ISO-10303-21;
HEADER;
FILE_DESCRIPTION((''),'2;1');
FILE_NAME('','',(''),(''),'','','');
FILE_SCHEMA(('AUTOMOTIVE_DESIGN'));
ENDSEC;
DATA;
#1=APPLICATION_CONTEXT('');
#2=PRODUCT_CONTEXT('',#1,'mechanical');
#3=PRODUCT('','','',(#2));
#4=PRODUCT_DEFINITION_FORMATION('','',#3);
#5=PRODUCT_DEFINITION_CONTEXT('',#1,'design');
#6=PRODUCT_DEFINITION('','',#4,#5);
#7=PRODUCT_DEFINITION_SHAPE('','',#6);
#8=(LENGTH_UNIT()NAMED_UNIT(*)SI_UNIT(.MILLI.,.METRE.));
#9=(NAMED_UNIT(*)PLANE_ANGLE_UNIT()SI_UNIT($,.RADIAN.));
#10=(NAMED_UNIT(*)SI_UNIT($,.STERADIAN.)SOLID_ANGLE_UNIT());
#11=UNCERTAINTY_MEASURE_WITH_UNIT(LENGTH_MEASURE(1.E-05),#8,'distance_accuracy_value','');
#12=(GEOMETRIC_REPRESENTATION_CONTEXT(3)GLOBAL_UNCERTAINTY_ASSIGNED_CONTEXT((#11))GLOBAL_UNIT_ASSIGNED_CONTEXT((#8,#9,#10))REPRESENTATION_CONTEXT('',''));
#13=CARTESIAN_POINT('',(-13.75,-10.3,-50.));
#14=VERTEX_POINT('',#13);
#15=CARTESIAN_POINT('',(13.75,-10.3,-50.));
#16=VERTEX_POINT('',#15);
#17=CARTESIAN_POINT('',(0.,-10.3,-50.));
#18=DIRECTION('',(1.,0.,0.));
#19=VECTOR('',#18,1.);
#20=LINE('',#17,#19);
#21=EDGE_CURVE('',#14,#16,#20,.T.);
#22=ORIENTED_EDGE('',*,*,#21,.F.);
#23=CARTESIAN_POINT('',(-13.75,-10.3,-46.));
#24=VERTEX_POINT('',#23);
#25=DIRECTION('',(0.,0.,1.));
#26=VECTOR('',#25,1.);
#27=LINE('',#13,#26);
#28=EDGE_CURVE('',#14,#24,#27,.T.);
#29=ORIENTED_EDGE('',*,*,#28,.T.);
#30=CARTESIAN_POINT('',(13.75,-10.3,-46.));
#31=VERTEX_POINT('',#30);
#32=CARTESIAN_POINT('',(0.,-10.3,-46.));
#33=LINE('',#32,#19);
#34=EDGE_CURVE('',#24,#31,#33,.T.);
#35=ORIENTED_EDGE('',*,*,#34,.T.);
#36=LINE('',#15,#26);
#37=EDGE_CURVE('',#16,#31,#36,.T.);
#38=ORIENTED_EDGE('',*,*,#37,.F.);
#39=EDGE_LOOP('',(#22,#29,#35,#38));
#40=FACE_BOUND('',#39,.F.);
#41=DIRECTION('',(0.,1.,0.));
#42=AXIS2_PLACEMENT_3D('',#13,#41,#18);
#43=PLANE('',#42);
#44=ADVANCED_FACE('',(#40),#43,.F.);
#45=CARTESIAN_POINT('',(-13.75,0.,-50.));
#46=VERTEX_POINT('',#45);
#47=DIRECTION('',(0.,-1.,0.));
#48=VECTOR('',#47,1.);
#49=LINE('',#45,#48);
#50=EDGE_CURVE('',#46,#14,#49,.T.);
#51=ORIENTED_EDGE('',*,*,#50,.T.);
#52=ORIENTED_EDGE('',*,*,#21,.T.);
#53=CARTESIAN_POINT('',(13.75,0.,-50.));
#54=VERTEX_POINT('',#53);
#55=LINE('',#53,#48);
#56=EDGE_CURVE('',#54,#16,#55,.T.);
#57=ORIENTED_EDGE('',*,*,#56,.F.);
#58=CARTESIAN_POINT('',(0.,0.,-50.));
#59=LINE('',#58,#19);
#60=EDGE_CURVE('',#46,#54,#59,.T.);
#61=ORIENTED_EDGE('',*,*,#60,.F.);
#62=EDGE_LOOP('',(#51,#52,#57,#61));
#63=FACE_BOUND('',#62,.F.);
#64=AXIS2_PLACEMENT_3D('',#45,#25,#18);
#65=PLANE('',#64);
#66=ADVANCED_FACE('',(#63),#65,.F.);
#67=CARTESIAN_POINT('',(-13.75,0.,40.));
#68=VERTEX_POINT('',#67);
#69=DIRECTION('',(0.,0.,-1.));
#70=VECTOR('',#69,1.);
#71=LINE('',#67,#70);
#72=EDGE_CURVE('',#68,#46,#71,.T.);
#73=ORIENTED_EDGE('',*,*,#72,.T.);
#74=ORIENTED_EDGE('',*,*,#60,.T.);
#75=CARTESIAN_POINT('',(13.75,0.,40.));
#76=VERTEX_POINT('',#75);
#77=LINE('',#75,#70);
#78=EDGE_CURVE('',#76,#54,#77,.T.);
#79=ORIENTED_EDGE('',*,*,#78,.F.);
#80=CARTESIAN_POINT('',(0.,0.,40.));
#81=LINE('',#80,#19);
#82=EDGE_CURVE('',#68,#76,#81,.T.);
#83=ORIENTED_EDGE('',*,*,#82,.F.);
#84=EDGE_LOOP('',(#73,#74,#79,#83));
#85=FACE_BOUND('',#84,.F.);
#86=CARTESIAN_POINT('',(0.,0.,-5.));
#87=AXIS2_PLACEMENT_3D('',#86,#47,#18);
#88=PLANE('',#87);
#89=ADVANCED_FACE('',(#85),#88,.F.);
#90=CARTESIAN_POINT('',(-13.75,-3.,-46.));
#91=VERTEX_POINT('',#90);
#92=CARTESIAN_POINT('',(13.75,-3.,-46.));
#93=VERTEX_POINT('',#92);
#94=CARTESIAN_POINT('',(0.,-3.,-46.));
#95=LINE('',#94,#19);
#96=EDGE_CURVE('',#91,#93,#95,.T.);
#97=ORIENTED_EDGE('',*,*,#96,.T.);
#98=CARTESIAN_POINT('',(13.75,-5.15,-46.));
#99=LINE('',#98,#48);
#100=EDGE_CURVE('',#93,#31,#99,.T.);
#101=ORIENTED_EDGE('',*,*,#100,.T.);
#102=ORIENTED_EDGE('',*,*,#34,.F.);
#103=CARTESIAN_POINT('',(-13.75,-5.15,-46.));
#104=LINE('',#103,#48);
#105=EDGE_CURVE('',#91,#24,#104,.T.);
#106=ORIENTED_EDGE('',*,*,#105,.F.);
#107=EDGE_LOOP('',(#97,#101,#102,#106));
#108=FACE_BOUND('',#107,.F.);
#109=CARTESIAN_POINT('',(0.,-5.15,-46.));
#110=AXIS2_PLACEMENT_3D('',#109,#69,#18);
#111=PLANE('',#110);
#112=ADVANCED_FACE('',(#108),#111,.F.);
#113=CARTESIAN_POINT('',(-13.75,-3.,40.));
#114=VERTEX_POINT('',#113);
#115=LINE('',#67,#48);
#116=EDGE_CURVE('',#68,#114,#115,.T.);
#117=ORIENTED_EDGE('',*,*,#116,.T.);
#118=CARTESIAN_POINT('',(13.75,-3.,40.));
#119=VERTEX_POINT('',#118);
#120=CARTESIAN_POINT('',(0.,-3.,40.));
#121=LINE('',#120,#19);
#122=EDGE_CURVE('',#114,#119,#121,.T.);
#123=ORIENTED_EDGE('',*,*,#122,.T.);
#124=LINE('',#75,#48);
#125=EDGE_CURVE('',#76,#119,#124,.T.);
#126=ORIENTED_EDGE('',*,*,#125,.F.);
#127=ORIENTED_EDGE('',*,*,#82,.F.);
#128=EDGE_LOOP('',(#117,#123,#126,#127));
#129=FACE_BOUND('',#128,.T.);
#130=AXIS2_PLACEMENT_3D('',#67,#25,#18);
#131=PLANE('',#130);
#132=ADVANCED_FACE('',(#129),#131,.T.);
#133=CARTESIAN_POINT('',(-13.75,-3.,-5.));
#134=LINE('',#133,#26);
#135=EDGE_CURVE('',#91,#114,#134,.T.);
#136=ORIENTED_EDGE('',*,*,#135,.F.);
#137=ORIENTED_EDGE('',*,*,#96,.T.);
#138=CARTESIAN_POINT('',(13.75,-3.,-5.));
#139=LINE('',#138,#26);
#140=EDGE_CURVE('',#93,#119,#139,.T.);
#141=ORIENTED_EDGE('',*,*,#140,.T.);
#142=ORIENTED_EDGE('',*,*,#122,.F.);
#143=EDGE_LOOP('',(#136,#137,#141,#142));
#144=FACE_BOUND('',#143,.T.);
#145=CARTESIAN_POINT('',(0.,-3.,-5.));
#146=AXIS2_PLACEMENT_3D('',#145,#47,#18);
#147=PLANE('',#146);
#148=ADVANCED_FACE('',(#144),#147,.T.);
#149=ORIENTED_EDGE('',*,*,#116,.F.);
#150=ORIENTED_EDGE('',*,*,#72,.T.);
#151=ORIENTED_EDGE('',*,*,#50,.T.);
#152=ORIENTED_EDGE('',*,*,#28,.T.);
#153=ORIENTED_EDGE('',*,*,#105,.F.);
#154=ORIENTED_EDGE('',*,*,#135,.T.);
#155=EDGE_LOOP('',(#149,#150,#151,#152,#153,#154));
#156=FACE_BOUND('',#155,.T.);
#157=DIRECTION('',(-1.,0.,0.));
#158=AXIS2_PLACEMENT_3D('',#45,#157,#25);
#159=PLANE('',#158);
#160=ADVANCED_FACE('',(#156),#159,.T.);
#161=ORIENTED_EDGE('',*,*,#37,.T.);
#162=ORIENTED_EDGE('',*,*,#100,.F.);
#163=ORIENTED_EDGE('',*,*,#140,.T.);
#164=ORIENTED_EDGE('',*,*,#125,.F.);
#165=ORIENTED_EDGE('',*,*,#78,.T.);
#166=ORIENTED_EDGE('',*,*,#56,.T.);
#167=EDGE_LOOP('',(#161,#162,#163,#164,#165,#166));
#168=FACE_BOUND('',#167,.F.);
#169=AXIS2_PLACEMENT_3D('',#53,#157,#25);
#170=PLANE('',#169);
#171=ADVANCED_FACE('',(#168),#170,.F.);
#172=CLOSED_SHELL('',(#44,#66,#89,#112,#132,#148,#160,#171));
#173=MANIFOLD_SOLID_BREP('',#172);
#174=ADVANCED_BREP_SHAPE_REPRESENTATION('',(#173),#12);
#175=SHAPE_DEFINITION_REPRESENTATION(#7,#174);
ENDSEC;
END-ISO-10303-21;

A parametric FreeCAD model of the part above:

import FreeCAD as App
import Part
import Sketcher
from FreeCAD import Vector


def add_polygon(sketch, points):
    """Adds a closed chain of lines whose ends are joined by coincident constraints."""
    first, n = sketch.GeometryCount, len(points)
    for a, b in zip(points, points[1:] + points[:1]):
        sketch.addGeometry(Part.LineSegment(App.Vector(*a, 0), App.Vector(*b, 0)), False)
    for i in range(n):
        sketch.addConstraint(Sketcher.Constraint("Coincident", first + i, 2, first + (i + 1) % n, 1))

doc = App.newDocument("Part")
params = doc.addObject("Spreadsheet::Sheet", "Params")
for row, (alias, value) in enumerate([
    ("sketch1_height", "90 mm"),
    ("sketch1_width", "27.5 mm"),
    ("pad1_length", "3 mm"),
    ("sketch2_width", "27.5 mm"),
    ("sketch2_height", "10.3 mm"),
    ("pad2_length", "4 mm"),
], start=1):
    params.set(f"A{row}", alias)
    params.set(f"B{row}", "=" + value)
    params.setAlias(f"B{row}", alias)

body = doc.addObject("PartDesign::Body", "Body")

# Sketch on XZ plane
sketch1 = body.newObject("Sketcher::SketchObject", "Sketch")
sketch1.AttachmentSupport = (doc.getObject("XZ_Plane"), [""])
sketch1.MapMode = "FlatFace"
add_polygon(sketch1, [(-13.75, 40), (-13.75, -50), (13.75, -50), (13.75, 40)])  # lines 0-3
sketch1.addConstraint(Sketcher.Constraint("Vertical", 0))
sketch1.addConstraint(Sketcher.Constraint("Horizontal", 1))
sketch1.addConstraint(Sketcher.Constraint("Vertical", 2))
sketch1.addConstraint(Sketcher.Constraint("Horizontal", 3))
sketch1.addConstraint(Sketcher.Constraint("DistanceY", 0, 2, 0, 1, 90.0))
sketch1.addConstraint(Sketcher.Constraint("DistanceX", 1, 1, 1, 2, 27.5))
sketch1.addConstraint(Sketcher.Constraint("DistanceY", 0, 2, -1, 1, 50.0))
sketch1.addConstraint(Sketcher.Constraint("DistanceX", 0, 2, -1, 1, 13.75))
sketch1.setExpression("Constraints[8]", "Params.sketch1_height")
sketch1.setExpression("Constraints[9]", "Params.sketch1_width")
pad1 = body.newObject("PartDesign::Pad", "Pad")
pad1.Profile = sketch1
pad1.setExpression("Length", "Params.pad1_length")

# Sketch on XY plane
sketch2 = body.newObject("Sketcher::SketchObject", "Sketch001")
sketch2.AttachmentSupport = (doc.getObject("XY_Plane"), [""])
sketch2.MapMode = "FlatFace"
sketch2.AttachmentOffset = App.Placement(Vector(0, 0, -50), App.Rotation())
add_polygon(sketch2, [(-13.75, -10.3), (-13.75, 0), (13.75, 0), (13.75, -10.3)])  # lines 0-3
sketch2.addConstraint(Sketcher.Constraint("Vertical", 0))
sketch2.addConstraint(Sketcher.Constraint("Horizontal", 1))
sketch2.addConstraint(Sketcher.Constraint("Vertical", 2))
sketch2.addConstraint(Sketcher.Constraint("Horizontal", 3))
sketch2.addConstraint(Sketcher.Constraint("Symmetric", 0, 2, 1, 2, -1, 1))
sketch2.addConstraint(Sketcher.Constraint("DistanceX", 1, 1, 1, 2, 27.5))
sketch2.addConstraint(Sketcher.Constraint("DistanceY", 0, 1, 0, 2, 10.3))
sketch2.setExpression("Constraints[9]", "Params.sketch2_width")
sketch2.setExpression("Constraints[10]", "Params.sketch2_height")
pad2 = body.newObject("PartDesign::Pad", "Pad001")
pad2.Profile = sketch2
pad2.setExpression("Length", "Params.pad2_length")

doc.recompute()
